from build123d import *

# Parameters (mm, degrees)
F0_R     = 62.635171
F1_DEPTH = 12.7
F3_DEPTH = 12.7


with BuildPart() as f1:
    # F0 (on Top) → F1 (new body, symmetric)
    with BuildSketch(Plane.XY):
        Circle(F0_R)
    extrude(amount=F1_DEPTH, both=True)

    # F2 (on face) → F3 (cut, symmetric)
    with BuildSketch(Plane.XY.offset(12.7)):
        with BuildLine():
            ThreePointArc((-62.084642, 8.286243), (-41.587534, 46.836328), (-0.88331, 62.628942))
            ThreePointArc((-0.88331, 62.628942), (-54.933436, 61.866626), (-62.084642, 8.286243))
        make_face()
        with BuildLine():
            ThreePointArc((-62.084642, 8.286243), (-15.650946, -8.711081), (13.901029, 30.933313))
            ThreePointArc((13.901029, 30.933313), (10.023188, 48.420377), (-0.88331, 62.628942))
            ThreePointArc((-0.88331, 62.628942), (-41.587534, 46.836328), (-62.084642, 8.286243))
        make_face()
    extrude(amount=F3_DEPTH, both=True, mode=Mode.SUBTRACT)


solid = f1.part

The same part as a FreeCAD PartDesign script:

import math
import FreeCAD as App
import Part
import Sketcher
from FreeCAD import Vector
Q = App.Units.Quantity

doc = App.newDocument("Part")
body = doc.addObject("PartDesign::Body", "Body")

sketch1 = body.newObject("Sketcher::SketchObject", "Sketch")
sketch1.AttachmentSupport = (doc.getObject("XY_Plane"), [""])
sketch1.MapMode = "FlatFace"
sketch1.addGeometry(Part.Circle(Vector(0, 0, 0), Vector(0, 0, 1), 63), False)
sketch1.addConstraint([
    Sketcher.Constraint("Coincident", 0, 3, -1, 1),
    Sketcher.Constraint("Diameter", 0, Q("125.270342 mm")),
])
pad1 = body.newObject("PartDesign::Pad", "Pad")
pad1.Profile = sketch1
pad1.Length = Q("1 in")
pad1.Midplane = True

sketch2 = body.newObject("Sketcher::SketchObject", "Sketch001")
sketch2.AttachmentSupport = (doc.getObject("XY_Plane"), [""])
sketch2.MapMode = "FlatFace"
sketch2.AttachmentOffset = App.Placement(Vector(0, 0, 0.5 * 25.4), App.Rotation())
sketch2.addGeometry([
    Part.ArcOfCircle(Part.Circle(Vector(-27, 31, 0), Vector(0, 0, 1), 41), math.radians(50), math.radians(213)),
    Part.ArcOfCircle(Part.Circle(Vector(-27, 31, 0), Vector(0, 0, 1), 41), math.radians(-147), math.radians(0)),
    Part.ArcOfCircle(Part.Circle(Vector(-27, 31, 0), Vector(0, 0, 1), 41), math.radians(0), math.radians(50)),
], False)
sketch2.addConstraint([
    Sketcher.Constraint("Tangent", 0, 2, 1, 1),
    Sketcher.Constraint("Tangent", 1, 2, 2, 1),
    Sketcher.Constraint("Tangent", 2, 2, 0, 1),
    Sketcher.Constraint("Horizontal", 2, 3, 1, 2),
    Sketcher.Constraint("Radius", 2, Q("41.36775 mm")),
    Sketcher.Constraint("DistanceY", 0, 2, 2, 2, Q("54.342699 mm")),
    Sketcher.Constraint("DistanceX", 2, 3, -1, 1, Q("27.466721 mm")),
    Sketcher.Constraint("DistanceY", -1, 1, 2, 3, Q("30.933311 mm")),
    Sketcher.Constraint("DistanceX", 2, 2, -1, 1, Q("0.88331 mm")),
])
pocket1 = body.newObject("PartDesign::Pocket", "Pocket")
pocket1.Profile = sketch2
pocket1.Length = Q("1 in")
pocket1.Midplane = True

doc.recompute()
